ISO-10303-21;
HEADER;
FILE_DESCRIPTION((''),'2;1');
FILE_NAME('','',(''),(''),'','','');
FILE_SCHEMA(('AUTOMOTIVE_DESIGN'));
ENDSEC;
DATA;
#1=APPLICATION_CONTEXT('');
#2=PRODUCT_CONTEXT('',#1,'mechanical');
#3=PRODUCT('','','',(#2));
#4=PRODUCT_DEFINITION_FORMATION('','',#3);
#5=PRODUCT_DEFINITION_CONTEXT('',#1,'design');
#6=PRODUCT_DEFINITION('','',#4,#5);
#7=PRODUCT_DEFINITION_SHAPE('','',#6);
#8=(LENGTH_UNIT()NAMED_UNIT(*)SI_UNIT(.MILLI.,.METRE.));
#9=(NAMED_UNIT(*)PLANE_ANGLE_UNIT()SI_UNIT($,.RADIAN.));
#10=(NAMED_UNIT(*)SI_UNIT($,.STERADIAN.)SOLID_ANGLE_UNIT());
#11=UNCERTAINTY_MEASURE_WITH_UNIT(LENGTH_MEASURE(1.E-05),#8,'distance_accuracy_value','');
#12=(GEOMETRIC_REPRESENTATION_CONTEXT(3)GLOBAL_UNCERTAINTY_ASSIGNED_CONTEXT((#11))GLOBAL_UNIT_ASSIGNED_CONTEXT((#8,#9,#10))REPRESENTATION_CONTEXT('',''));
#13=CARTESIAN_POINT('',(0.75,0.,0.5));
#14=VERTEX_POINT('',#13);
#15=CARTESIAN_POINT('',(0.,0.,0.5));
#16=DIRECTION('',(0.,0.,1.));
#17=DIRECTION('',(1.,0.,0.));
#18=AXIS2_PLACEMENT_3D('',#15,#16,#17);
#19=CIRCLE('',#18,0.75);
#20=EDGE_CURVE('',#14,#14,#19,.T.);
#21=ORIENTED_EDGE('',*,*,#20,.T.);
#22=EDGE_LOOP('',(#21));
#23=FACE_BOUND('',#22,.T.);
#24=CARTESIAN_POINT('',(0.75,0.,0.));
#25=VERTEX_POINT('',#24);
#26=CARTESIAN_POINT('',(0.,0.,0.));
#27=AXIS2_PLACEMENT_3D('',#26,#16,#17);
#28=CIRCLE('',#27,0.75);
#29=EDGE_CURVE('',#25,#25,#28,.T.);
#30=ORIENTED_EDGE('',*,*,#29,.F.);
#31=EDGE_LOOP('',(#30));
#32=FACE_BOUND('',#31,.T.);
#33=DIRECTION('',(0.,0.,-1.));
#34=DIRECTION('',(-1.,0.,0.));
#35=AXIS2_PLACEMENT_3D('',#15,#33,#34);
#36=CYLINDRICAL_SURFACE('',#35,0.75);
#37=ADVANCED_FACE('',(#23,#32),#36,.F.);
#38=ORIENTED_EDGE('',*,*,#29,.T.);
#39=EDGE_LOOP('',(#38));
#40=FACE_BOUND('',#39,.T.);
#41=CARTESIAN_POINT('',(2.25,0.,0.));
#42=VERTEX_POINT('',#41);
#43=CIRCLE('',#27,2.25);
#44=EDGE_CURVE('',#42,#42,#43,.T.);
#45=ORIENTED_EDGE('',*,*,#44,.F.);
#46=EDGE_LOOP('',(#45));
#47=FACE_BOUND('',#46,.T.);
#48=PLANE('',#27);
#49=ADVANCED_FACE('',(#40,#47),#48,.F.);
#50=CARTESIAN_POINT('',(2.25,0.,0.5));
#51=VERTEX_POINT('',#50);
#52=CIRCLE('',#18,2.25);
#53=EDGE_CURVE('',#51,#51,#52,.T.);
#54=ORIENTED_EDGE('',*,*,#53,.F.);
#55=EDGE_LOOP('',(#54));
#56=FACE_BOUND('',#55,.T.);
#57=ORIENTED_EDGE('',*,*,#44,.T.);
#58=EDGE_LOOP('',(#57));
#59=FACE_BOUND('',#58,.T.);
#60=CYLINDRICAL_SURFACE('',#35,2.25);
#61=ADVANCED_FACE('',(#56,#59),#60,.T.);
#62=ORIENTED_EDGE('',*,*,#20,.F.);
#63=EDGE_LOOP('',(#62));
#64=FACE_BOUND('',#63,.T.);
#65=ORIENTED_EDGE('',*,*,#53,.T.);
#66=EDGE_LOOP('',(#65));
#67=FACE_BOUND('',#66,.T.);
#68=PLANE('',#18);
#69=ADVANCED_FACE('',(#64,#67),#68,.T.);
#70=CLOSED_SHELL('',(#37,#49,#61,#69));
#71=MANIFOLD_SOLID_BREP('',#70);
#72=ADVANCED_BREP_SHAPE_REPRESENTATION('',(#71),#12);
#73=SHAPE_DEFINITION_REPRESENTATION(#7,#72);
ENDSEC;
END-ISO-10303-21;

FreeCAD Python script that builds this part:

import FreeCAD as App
import Part
import Sketcher
from FreeCAD import Vector
Q = App.Units.Quantity

doc = App.newDocument("Part")
body = doc.addObject("PartDesign::Body", "Body")

# Sketch on XY plane
sketch1 = doc.addObject("Sketcher::SketchObject", "Sketch")
body.addObject(sketch1)
sketch1.AttachmentSupport = (doc.XY_Plane, [""])
sketch1.MapMode = "FlatFace"
sketch1.addGeometry(Part.Circle(Vector(0, 0, 0), Vector(0, 0, 1), 2.2), False)
sketch1.addGeometry(Part.Circle(Vector(0, 0, 0), Vector(0, 0, 1), 0.8), False)
sketch1.addConstraint(Sketcher.Constraint("Coincident", 0, 3, -1, 1))
sketch1.addConstraint(Sketcher.Constraint("Coincident", 1, 3, -1, 1))
sketch1.addConstraint(Sketcher.Constraint("Diameter", 0, Q("4.5 mm")))
sketch1.addConstraint(Sketcher.Constraint("Diameter", 1, Q("1.5 mm")))
pad1 = doc.addObject("PartDesign::Pad", "Pad")
body.addObject(pad1)
pad1.Profile = sketch1
pad1.Length = 0.5

doc.recompute()
